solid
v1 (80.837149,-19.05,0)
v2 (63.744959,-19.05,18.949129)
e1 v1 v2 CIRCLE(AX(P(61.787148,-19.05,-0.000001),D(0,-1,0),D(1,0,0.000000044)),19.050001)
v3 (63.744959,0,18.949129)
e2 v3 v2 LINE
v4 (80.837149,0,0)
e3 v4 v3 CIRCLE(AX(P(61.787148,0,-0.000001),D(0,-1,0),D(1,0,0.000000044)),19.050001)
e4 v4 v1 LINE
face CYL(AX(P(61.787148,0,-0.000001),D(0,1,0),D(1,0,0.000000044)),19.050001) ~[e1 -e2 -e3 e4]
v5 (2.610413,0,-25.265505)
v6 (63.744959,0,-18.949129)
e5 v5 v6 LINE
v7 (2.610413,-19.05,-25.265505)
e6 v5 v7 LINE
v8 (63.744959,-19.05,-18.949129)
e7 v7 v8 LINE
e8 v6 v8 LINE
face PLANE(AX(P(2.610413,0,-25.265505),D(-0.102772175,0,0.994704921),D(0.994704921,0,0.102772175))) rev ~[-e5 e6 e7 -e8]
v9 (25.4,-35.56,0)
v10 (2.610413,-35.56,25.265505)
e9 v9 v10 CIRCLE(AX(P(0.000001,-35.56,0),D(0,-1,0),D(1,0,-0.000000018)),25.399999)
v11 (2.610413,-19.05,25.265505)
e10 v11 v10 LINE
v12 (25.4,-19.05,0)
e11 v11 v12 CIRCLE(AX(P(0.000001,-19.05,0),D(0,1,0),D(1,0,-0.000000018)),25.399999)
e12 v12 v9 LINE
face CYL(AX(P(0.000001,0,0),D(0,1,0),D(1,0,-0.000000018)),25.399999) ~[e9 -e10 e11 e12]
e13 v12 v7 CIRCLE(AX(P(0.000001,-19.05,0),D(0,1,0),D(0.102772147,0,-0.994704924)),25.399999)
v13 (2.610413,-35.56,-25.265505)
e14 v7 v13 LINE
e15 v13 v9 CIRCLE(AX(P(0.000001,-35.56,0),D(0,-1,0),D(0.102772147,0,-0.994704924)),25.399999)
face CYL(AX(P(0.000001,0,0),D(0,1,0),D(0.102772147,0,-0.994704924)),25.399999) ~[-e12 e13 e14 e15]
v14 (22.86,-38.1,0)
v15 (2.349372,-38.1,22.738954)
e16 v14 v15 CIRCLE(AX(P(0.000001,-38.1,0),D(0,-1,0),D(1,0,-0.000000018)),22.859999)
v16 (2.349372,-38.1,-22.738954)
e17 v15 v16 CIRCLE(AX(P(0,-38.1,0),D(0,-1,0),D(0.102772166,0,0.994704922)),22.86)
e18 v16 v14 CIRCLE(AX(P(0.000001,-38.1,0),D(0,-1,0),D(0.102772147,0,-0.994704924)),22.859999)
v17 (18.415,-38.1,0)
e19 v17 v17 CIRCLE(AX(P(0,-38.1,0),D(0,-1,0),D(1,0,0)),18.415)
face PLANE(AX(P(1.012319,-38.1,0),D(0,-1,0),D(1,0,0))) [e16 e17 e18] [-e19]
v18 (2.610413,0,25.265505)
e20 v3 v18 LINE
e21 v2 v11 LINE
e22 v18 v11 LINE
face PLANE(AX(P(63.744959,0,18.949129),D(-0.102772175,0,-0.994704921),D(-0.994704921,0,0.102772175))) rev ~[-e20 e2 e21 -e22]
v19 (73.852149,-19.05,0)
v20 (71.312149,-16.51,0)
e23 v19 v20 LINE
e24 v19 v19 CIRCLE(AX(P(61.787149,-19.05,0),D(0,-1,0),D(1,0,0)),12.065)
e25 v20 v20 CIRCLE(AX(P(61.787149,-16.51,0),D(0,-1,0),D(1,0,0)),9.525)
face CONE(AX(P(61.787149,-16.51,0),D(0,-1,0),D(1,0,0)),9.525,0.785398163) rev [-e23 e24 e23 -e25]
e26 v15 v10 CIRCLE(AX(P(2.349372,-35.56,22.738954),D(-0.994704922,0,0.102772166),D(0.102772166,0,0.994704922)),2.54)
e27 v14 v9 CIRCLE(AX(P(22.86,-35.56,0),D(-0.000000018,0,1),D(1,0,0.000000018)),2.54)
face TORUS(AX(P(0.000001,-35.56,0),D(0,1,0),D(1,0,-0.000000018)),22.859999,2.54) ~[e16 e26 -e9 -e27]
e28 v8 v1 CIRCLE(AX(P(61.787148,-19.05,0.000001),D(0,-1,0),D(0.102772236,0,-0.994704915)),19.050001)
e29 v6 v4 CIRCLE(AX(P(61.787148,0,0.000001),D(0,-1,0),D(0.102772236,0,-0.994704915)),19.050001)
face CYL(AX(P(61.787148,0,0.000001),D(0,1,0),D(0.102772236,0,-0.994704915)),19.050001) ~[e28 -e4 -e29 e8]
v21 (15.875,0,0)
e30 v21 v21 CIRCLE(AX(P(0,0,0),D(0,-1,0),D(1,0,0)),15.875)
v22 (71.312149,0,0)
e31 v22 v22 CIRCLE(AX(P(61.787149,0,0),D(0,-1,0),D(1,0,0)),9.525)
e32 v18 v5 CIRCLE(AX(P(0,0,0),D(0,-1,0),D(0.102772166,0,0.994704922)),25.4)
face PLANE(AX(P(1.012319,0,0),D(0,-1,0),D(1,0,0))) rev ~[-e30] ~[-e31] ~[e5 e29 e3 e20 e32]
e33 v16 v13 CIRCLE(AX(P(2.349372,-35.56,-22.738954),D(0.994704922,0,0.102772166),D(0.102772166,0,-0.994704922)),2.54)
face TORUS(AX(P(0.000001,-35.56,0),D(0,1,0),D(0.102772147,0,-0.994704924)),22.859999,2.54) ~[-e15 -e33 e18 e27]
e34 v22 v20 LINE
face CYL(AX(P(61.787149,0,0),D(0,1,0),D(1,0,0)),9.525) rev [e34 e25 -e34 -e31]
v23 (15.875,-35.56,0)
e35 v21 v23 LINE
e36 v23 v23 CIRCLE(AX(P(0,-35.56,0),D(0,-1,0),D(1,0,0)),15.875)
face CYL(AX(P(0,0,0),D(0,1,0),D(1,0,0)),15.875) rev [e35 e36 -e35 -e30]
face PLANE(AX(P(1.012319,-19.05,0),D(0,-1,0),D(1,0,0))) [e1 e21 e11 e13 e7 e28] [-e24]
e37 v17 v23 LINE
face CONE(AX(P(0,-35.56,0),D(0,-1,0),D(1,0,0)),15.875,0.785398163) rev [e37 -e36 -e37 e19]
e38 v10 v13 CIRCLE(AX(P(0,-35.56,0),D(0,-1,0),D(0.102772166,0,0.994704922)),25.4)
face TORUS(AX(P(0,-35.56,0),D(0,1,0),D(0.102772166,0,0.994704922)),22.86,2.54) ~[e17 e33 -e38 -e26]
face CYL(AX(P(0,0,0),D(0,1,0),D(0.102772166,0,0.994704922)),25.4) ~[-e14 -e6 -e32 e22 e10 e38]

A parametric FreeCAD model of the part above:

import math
import FreeCAD as App
import Part
import Sketcher
from FreeCAD import Vector
Q = App.Units.Quantity


def edges_at(feature, points):
    """Names of the edges that pass closest to the given points."""
    edges = feature.Shape.Edges
    near = lambda p: min(range(len(edges)), key=lambda i: edges[i].distToShape(Part.Vertex(*p))[0])
    return sorted({f"Edge{near(p) + 1}" for p in points})

doc = App.newDocument("Part")
body = doc.addObject("PartDesign::Body", "Body")

sketch1 = body.newObject("Sketcher::SketchObject", "Sketch")
sketch1.AttachmentSupport = (doc.getObject("XZ_Plane"), [""])
sketch1.MapMode = "FlatFace"
sketch1.addGeometry([
    Part.ArcOfCircle(Part.Circle(Vector(0, 0, 0), Vector(0, 0, 1), 25), math.radians(-84), math.radians(0)),
    Part.ArcOfCircle(Part.Circle(Vector(0, 0, 0), Vector(0, 0, 1), 25), math.radians(0), math.radians(84)),
    Part.ArcOfCircle(Part.Circle(Vector(0, 0, 0), Vector(0, 0, 1), 25), math.radians(84), math.radians(276)),
    Part.Circle(Vector(0, 0, 0), Vector(0, 0, 1), 16),
], False)
sketch1.addConstraint([
    Sketcher.Constraint("Tangent", 0, 2, 1, 1),
    Sketcher.Constraint("Tangent", 1, 2, 2, 1),
    Sketcher.Constraint("Tangent", 2, 2, 0, 1),
    Sketcher.Constraint("Coincident", 0, 3, -1, 1),
    Sketcher.Constraint("Coincident", 3, 3, -1, 1),
    Sketcher.Constraint("PointOnObject", 0, 2, -1),
    Sketcher.Constraint("Vertical", 1, 2, 2, 2),
    Sketcher.Constraint("Radius", 0, Q("1 in")),
    Sketcher.Constraint("Diameter", 3, Q("1.25 in")),
    Sketcher.Constraint("DistanceX", -1, 1, 1, 2, Q("2.610413 mm")),
])
pad1 = body.newObject("PartDesign::Pad", "Pad")
pad1.Profile = sketch1
pad1.Length = Q("1.5 in")

sketch2 = body.newObject("Sketcher::SketchObject", "Sketch001")
sketch2.AttachmentSupport = (doc.getObject("XZ_Plane"), [""])
sketch2.MapMode = "FlatFace"
sketch2.addGeometry([
    Part.ArcOfCircle(Part.Circle(Vector(0, 0, 0), Vector(0, 0, 1), 25), math.radians(84), math.radians(276)),
    Part.LineSegment(Vector(3, -25, 0), Vector(64, -19, 0)),
    Part.ArcOfCircle(Part.Circle(Vector(62, 0, 0), Vector(0, 0, 1), 19), math.radians(-84), math.radians(0)),
    Part.ArcOfCircle(Part.Circle(Vector(62, 0, 0), Vector(0, 0, 1), 19), math.radians(0), math.radians(84)),
    Part.LineSegment(Vector(64, 19, 0), Vector(3, 25, 0)),
    Part.Circle(Vector(0, 0, 0), Vector(0, 0, 1), 16),
    Part.Circle(Vector(62, 0, 0), Vector(0, 0, 1), 10),
], False)
sketch2.addConstraint([
    Sketcher.Constraint("Tangent", 0, 2, 1, 1),
    Sketcher.Constraint("Tangent", 1, 2, 2, 1),
    Sketcher.Constraint("Tangent", 2, 2, 3, 1),
    Sketcher.Constraint("Tangent", 3, 2, 4, 1),
    Sketcher.Constraint("Tangent", 4, 2, 0, 1),
    Sketcher.Constraint("Coincident", 0, 3, -1, 1),
    Sketcher.Constraint("Coincident", 5, 3, -1, 1),
    Sketcher.Constraint("Coincident", 6, 3, 2, 3),
    Sketcher.Constraint("Equal", 2, 3),
    Sketcher.Constraint("PointOnObject", 2, 3, -1),
    Sketcher.Constraint("PointOnObject", 2, 2, -1),
    Sketcher.Constraint("Radius", 0, Q("1 in")),
    Sketcher.Constraint("Diameter", 5, Q("1.25 in")),
    Sketcher.Constraint("Diameter", 6, Q("0.75 in")),
    Sketcher.Constraint("Radius", 2, Q("0.75 in")),
    Sketcher.Constraint("Distance", 1, Q("61.459981 mm")),
])
pad2 = body.newObject("PartDesign::Pad", "Pad001")
pad2.Profile = sketch2
pad2.Length = Q("0.75 in")
doc.recompute()

fillet = body.newObject("PartDesign::Fillet", "Fillet")
fillet.Base = (pad2, edges_at(pad2, [(-25.4, -38.1, 0)]))
fillet.Radius = Q("0.1 in")
doc.recompute()

chamfer = body.newObject("PartDesign::Chamfer", "Chamfer")
chamfer.Base = (fillet, edges_at(fillet, [(-15.875, -38.1, 0), (52.262, -19.05, 0)]))
chamfer.Size = Q("0.1 in")

doc.recompute()
